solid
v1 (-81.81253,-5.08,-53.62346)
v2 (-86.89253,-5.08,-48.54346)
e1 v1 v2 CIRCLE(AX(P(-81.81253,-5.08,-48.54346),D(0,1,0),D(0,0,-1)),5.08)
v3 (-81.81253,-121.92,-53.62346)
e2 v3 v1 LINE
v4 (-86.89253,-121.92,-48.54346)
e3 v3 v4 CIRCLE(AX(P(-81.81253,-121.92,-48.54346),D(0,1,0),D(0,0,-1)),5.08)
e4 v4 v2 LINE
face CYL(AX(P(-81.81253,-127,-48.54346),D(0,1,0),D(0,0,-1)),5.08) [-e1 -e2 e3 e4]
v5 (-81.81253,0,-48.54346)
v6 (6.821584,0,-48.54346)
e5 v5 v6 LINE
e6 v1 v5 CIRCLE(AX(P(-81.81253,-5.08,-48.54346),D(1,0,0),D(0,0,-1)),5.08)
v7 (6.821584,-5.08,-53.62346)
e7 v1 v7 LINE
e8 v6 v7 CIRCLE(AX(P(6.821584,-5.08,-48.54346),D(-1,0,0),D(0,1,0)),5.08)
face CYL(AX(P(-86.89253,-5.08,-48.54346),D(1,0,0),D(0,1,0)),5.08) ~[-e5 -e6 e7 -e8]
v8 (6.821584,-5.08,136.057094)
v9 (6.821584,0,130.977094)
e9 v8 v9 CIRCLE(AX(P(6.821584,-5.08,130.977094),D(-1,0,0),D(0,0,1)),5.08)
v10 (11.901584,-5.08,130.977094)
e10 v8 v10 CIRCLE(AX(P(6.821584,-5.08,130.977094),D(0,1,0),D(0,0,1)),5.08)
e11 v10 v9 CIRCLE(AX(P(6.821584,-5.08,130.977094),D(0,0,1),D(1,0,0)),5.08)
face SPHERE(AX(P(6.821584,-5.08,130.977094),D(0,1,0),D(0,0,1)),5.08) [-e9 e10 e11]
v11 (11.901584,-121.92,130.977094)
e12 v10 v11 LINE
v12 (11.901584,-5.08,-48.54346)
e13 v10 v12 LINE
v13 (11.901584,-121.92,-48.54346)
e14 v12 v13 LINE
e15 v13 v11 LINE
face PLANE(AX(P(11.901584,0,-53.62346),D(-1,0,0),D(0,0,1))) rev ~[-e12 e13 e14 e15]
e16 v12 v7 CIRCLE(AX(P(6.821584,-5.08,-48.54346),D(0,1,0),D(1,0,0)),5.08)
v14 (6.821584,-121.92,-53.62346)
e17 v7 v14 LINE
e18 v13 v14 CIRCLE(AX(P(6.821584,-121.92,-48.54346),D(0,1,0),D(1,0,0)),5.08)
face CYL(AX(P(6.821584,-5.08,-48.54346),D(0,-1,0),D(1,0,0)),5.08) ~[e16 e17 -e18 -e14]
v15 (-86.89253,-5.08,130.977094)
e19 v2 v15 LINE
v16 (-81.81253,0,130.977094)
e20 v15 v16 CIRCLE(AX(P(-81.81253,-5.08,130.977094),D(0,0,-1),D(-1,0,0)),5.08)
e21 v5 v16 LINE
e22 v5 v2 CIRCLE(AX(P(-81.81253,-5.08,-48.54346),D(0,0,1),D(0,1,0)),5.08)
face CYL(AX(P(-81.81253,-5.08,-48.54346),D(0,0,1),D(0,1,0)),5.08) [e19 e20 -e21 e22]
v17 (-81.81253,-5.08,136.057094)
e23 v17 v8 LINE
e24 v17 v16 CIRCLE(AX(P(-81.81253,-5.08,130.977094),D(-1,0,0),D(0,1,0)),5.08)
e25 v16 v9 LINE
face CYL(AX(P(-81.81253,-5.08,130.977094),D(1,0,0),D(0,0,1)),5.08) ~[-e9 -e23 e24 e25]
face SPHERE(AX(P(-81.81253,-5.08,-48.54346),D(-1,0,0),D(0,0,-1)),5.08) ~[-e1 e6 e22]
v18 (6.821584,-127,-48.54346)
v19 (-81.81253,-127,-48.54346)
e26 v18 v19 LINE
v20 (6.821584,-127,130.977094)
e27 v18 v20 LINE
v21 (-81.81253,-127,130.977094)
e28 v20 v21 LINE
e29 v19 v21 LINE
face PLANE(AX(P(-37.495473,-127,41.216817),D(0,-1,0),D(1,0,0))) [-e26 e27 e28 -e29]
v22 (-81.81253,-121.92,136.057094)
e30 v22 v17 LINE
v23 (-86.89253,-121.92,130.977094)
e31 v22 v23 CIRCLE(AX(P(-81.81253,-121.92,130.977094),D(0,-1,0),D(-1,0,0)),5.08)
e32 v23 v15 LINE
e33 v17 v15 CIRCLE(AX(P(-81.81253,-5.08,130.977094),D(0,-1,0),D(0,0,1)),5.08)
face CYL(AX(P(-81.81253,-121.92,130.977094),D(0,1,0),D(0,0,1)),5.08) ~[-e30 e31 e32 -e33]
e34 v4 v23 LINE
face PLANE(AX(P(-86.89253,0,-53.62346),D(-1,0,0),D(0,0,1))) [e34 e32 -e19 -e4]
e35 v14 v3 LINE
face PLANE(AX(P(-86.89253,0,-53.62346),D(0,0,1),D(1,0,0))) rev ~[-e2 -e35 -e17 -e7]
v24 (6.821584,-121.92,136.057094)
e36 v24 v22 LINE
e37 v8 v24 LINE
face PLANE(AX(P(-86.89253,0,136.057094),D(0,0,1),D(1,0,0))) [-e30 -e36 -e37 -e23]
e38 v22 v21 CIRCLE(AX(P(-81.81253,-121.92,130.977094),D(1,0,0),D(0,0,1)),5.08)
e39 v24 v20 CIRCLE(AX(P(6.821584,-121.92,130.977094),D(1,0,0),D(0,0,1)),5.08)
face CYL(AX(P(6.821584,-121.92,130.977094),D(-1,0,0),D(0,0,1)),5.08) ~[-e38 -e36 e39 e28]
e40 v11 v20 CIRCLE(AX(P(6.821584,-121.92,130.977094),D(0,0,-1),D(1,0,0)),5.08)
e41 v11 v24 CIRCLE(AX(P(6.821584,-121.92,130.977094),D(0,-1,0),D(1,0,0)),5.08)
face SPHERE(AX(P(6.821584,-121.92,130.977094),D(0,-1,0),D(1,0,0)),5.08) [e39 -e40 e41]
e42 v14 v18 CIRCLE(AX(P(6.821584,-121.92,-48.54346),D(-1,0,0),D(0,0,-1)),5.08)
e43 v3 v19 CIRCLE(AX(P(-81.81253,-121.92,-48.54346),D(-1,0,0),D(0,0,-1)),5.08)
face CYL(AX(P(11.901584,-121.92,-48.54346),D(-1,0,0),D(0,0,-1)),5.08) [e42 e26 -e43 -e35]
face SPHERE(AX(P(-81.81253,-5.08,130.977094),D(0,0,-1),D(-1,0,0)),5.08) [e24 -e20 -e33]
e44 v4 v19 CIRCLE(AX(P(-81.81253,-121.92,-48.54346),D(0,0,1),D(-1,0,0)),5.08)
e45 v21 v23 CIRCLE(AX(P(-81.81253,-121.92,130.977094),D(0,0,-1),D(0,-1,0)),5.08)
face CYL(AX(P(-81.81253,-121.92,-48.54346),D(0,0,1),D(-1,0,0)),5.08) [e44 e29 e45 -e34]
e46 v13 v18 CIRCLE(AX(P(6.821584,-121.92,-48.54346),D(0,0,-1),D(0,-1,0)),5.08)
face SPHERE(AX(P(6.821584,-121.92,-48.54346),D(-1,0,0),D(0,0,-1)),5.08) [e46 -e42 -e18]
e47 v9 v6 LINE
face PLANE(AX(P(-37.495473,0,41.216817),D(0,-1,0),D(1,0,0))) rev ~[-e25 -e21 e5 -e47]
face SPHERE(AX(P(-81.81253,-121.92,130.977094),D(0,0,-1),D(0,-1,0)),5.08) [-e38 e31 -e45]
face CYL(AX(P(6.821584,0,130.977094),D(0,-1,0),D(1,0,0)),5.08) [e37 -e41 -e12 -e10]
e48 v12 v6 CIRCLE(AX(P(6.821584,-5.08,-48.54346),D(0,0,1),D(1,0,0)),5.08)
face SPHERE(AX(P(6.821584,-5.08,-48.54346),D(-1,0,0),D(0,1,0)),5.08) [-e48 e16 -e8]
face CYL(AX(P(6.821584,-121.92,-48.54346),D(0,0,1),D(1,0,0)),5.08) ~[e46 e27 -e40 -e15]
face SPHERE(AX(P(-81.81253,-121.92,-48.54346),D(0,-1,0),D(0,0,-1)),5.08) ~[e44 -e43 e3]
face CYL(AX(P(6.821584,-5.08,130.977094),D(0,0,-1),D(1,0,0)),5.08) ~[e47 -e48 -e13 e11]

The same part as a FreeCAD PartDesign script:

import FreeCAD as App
import Part
import Sketcher
Q = App.Units.Quantity


def edges_at(feature, points):
    """Names of the edges that pass closest to the given points."""
    edges = feature.Shape.Edges
    near = lambda p: min(range(len(edges)), key=lambda i: edges[i].distToShape(Part.Vertex(*p))[0])
    return sorted({f"Edge{near(p) + 1}" for p in points})

doc = App.newDocument("Part")
body = doc.addObject("PartDesign::Body", "Body")

# Sketch on XZ plane
sketch1 = body.newObject("Sketcher::SketchObject", "Sketch")
sketch1.AttachmentSupport = (doc.getObject("XZ_Plane"), [""])
sketch1.MapMode = "FlatFace"
sketch1.addGeometry(Part.LineSegment(App.Vector(-87, 136, 0), App.Vector(-87, -54, 0)), False)
sketch1.addGeometry(Part.LineSegment(App.Vector(-87, -54, 0), App.Vector(12, -54, 0)), False)
sketch1.addGeometry(Part.LineSegment(App.Vector(12, -54, 0), App.Vector(12, 136, 0)), False)
sketch1.addGeometry(Part.LineSegment(App.Vector(12, 136, 0), App.Vector(-87, 136, 0)), False)
sketch1.addConstraint(Sketcher.Constraint("Coincident", 0, 2, 1, 1))
sketch1.addConstraint(Sketcher.Constraint("Coincident", 1, 2, 2, 1))
sketch1.addConstraint(Sketcher.Constraint("Coincident", 2, 2, 3, 1))
sketch1.addConstraint(Sketcher.Constraint("Coincident", 3, 2, 0, 1))
sketch1.addConstraint(Sketcher.Constraint("Vertical", 0))
sketch1.addConstraint(Sketcher.Constraint("Horizontal", 1))
sketch1.addConstraint(Sketcher.Constraint("Vertical", 2))
sketch1.addConstraint(Sketcher.Constraint("Horizontal", 3))
sketch1.addConstraint(Sketcher.Constraint("DistanceX", 1, 1, 1, 2, Q("98.794114 mm")))
sketch1.addConstraint(Sketcher.Constraint("DistanceY", 0, 2, 0, 1, Q("189.680554 mm")))
sketch1.addConstraint(Sketcher.Constraint("DistanceX", 0, 2, -1, 1, Q("86.89253 mm")))
sketch1.addConstraint(Sketcher.Constraint("DistanceY", 0, 2, -1, 1, Q("53.62346 mm")))
pad1 = body.newObject("PartDesign::Pad", "Pad")
pad1.Profile = sketch1
pad1.Length = Q("5 in")
doc.recompute()

fillet = body.newObject("PartDesign::Fillet", "Fillet")
fillet.Base = (pad1, edges_at(pad1, [(11.902, -63.5, 136.057)]))
fillet.Radius = Q("0.2 in")
doc.recompute()

fillet2 = body.newObject("PartDesign::Fillet", "Fillet001")
fillet2.Base = (fillet, edges_at(fillet, [(-37.495, 0, -53.623)]))
fillet2.Radius = Q("0.2 in")
doc.recompute()

fillet3 = body.newObject("PartDesign::Fillet", "Fillet002")
fillet3.Base = (fillet2, edges_at(fillet2, [(-86.893, 0, 43.757)]))
fillet3.Radius = Q("0.2 in")
doc.recompute()

fillet4 = body.newObject("PartDesign::Fillet", "Fillet003")
fillet4.Base = (fillet3, edges_at(fillet3, [(-86.893, -127, 43.757)]))
fillet4.Radius = Q("0.2 in")
doc.recompute()

fillet5 = body.newObject("PartDesign::Fillet", "Fillet004")
fillet5.Base = (fillet4, edges_at(fillet4, [(11.902, -63.5, -53.623)]))
fillet5.Radius = Q("0.2 in")

doc.recompute()
